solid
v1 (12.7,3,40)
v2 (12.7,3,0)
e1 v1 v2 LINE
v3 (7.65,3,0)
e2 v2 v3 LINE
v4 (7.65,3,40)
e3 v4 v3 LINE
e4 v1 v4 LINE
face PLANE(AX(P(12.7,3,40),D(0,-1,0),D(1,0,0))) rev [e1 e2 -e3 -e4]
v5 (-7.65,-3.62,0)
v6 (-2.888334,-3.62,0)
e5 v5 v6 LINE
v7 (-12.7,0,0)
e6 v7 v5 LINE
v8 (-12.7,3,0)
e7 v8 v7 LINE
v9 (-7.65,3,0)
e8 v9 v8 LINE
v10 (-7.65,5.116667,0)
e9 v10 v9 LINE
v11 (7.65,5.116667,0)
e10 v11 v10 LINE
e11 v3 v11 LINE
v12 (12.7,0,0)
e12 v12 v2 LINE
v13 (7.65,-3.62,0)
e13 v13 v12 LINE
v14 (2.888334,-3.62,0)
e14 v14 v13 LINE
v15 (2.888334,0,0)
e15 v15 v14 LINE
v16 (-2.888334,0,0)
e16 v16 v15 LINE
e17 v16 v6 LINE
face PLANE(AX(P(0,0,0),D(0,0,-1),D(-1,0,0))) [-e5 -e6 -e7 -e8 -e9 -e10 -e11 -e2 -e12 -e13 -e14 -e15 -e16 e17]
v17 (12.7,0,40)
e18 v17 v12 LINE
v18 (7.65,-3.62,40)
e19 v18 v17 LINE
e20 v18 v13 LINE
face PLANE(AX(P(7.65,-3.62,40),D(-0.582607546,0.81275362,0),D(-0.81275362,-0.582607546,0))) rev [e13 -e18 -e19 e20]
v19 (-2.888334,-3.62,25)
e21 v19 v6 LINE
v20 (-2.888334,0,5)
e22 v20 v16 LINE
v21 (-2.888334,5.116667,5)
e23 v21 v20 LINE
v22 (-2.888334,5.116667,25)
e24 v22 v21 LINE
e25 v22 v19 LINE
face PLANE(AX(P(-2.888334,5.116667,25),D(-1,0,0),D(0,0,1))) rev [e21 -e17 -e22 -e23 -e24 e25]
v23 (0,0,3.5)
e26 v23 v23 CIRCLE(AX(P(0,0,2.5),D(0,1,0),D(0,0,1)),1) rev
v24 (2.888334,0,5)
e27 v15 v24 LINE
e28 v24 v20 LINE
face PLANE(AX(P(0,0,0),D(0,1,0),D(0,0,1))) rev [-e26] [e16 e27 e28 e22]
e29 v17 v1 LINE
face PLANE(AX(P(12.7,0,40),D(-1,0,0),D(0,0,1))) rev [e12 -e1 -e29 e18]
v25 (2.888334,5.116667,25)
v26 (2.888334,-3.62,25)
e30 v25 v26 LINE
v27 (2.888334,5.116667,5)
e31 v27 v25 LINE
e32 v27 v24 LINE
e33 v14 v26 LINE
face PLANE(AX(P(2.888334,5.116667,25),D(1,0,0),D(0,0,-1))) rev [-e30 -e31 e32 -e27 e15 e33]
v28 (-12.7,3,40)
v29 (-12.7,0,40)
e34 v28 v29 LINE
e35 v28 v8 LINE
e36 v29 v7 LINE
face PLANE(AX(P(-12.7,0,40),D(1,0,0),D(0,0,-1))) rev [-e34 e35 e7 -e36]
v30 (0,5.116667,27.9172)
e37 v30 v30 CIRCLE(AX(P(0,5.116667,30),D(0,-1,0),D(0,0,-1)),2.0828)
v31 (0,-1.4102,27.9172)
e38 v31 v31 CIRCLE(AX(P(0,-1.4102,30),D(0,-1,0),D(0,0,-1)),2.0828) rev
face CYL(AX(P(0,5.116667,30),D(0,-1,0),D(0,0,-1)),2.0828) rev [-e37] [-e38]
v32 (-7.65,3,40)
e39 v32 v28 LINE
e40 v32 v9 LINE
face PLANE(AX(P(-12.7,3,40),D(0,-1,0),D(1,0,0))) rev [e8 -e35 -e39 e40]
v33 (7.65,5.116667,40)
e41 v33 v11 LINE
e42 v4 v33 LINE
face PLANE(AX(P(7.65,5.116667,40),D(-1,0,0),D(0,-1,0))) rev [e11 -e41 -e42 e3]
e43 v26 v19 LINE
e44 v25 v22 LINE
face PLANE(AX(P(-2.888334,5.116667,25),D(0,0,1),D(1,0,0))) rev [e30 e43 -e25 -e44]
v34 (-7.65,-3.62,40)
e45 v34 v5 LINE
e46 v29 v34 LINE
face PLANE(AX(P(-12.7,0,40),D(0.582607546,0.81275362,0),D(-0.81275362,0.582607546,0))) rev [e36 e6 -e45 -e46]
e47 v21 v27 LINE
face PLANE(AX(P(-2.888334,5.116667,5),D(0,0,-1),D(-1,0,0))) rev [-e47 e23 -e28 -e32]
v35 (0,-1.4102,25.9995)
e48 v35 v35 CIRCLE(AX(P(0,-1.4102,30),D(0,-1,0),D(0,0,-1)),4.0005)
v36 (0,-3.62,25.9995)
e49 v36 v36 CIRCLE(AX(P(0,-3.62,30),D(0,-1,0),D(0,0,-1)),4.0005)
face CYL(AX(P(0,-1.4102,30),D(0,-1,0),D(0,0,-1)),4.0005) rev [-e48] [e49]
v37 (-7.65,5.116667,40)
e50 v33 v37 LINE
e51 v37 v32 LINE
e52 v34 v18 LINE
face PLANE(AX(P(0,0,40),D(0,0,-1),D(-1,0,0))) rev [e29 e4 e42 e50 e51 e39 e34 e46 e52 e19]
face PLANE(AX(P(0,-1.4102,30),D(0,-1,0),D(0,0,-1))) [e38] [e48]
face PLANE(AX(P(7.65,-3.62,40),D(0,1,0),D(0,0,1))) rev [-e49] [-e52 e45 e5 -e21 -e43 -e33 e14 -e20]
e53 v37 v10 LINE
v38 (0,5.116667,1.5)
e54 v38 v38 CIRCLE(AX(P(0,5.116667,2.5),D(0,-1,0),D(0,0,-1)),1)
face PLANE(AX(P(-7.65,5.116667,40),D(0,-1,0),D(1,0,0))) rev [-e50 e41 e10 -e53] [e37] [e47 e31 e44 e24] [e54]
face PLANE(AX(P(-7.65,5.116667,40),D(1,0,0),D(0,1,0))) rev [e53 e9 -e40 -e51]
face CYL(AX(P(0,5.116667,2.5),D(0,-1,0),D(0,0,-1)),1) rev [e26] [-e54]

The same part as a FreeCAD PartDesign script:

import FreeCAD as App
import Part
import Sketcher

V = App.Vector
Q = App.Units.Quantity

doc = App.newDocument("Part")
body = doc.addObject("PartDesign::Body", "Body")

# Sketch on XY plane
sketch1 = body.newObject("Sketcher::SketchObject", "Sketch")
sketch1.AttachmentSupport = (doc.getObject("XY_Plane"), [""])
sketch1.MapMode = "FlatFace"
sketch1.addGeometry([
    Part.LineSegment(V(7.7, 5.1, 0), V(-7.7, 5.1, 0)),  # 0
    Part.LineSegment(V(-7.7, 5.1, 0), V(-7.7, 3, 0)),  # 1
    Part.LineSegment(V(-7.7, 3, 0), V(-12.7, 3, 0)),  # 2
    Part.LineSegment(V(-12.7, 3, 0), V(-12.7, 0, 0)),  # 3
    Part.LineSegment(V(-12.7, 0, 0), V(-7.7, -3.6, 0)),  # 4
    Part.LineSegment(V(-7.7, -3.6, 0), V(7.7, -3.6, 0)),  # 5
    Part.LineSegment(V(7.7, -3.6, 0), V(12.7, 0, 0)),  # 6
    Part.LineSegment(V(12.7, 0, 0), V(12.7, 3, 0)),  # 7
    Part.LineSegment(V(12.7, 3, 0), V(7.7, 3, 0)),  # 8
    Part.LineSegment(V(7.7, 3, 0), V(7.7, 5.1, 0)),  # 9
], False)
sketch1.addConstraint([
    Sketcher.Constraint("Coincident", 0, 2, 1, 1),
    Sketcher.Constraint("Coincident", 1, 2, 2, 1),
    Sketcher.Constraint("Coincident", 2, 2, 3, 1),
    Sketcher.Constraint("Coincident", 3, 2, 4, 1),
    Sketcher.Constraint("Coincident", 4, 2, 5, 1),
    Sketcher.Constraint("Coincident", 5, 2, 6, 1),
    Sketcher.Constraint("Coincident", 6, 2, 7, 1),
    Sketcher.Constraint("Coincident", 7, 2, 8, 1),
    Sketcher.Constraint("Coincident", 8, 2, 9, 1),
    Sketcher.Constraint("Coincident", 9, 2, 0, 1),
    Sketcher.Constraint("Horizontal", 0),
    Sketcher.Constraint("Vertical", 1),
    Sketcher.Constraint("Horizontal", 2),
    Sketcher.Constraint("Vertical", 3),
    Sketcher.Constraint("Horizontal", 5),
    Sketcher.Constraint("Vertical", 7),
    Sketcher.Constraint("Horizontal", 8),
    Sketcher.Constraint("Vertical", 9),
    Sketcher.Constraint("Symmetric", 3, 2, 6, 2, -1, 1),
    Sketcher.Constraint("Symmetric", 1, 2, 8, 2, -2),
    Sketcher.Constraint("PointOnObject", 3, 2, -1),
    Sketcher.Constraint("Vertical", 1, 2, 4, 2),
    Sketcher.Constraint("Vertical", 5, 2, 8, 2),
    Sketcher.Constraint("DistanceY", 3, 2, 3, 1, Q("3 mm")),
    Sketcher.Constraint("DistanceX", 0, 2, 0, 1, Q("15.3 mm")),
    Sketcher.Constraint("DistanceX", 2, 2, 2, 1, Q("5.05 mm")),
    Sketcher.Constraint("DistanceY", 4, 2, -1, 1, Q("3.62 mm")),
    Sketcher.Constraint("DistanceY", 1, 2, 1, 1, Q("2.116667 mm")),
])
pad1 = body.newObject("PartDesign::Pad", "Pad")
pad1.Profile = sketch1
pad1.Length = 40

# Sketch on XZ plane
sketch2 = body.newObject("Sketcher::SketchObject", "Sketch001")
sketch2.AttachmentSupport = (doc.getObject("XZ_Plane"), [""])
sketch2.MapMode = "FlatFace"
sketch2.AttachmentOffset = App.Placement(V(0, 0, 3.62), App.Rotation())
sketch2.addGeometry([
    Part.Circle(V(0, 30, 0), V(0, 0, 1), 2.1),
    Part.Circle(V(0, 2.5, 0), V(0, 0, 1), 1),
], False)
sketch2.addConstraint([
    Sketcher.Constraint("PointOnObject", 0, 3, -2),
    Sketcher.Constraint("PointOnObject", 1, 3, -2),
    Sketcher.Constraint("Diameter", 1, Q("2 mm")),
    Sketcher.Constraint("DistanceY", -1, 1, 0, 3, Q("30 mm")),
    Sketcher.Constraint("Diameter", 0, Q("4.1656 mm")),
    Sketcher.Constraint("DistanceY", -1, 1, 1, 3, Q("2.5 mm")),
])
pocket1 = body.newObject("PartDesign::Pocket", "Pocket")
pocket1.Profile = sketch2
pocket1.Type = "ThroughAll"

# Sketch on XZ plane
sketch3 = body.newObject("Sketcher::SketchObject", "Sketch002")
sketch3.AttachmentSupport = (doc.getObject("XZ_Plane"), [""])
sketch3.MapMode = "FlatFace"
sketch3.AttachmentOffset = App.Placement(V(0, 0, 3.62), App.Rotation())
sketch3.addGeometry([
    Part.LineSegment(V(-3, 25, 0), V(-3, 5, 0)),
    Part.LineSegment(V(-3, 5, 0), V(3, 5, 0)),
    Part.LineSegment(V(3, 5, 0), V(3, 25, 0)),
    Part.LineSegment(V(3, 25, 0), V(-3, 25, 0)),
], False)
sketch3.addConstraint([
    Sketcher.Constraint("Coincident", 0, 2, 1, 1),
    Sketcher.Constraint("Coincident", 1, 2, 2, 1),
    Sketcher.Constraint("Coincident", 2, 2, 3, 1),
    Sketcher.Constraint("Coincident", 3, 2, 0, 1),
    Sketcher.Constraint("Vertical", 0),
    Sketcher.Constraint("Horizontal", 1),
    Sketcher.Constraint("Vertical", 2),
    Sketcher.Constraint("Horizontal", 3),
    Sketcher.Constraint("DistanceY", 0, 2, 0, 1, Q("20 mm")),
    Sketcher.Constraint("DistanceY", -1, 1, 0, 2, Q("5 mm")),
    Sketcher.Constraint("DistanceX", 1, 1, 1, 2, Q("5.776667 mm")),
    Sketcher.Constraint("DistanceX", 0, 2, -1, 1, Q("2.888334 mm")),
])
pocket2 = body.newObject("PartDesign::Pocket", "Pocket001")
pocket2.Profile = sketch3
pocket2.Type = "ThroughAll"

# Sketch on XZ plane
sketch4 = body.newObject("Sketcher::SketchObject", "Sketch003")
sketch4.AttachmentSupport = (doc.getObject("XZ_Plane"), [""])
sketch4.MapMode = "FlatFace"
sketch4.AttachmentOffset = App.Placement(V(0, 0, 3.62), App.Rotation())
sketch4.addGeometry([
    Part.LineSegment(V(-3, 5, 0), V(-3, 0, 0)),
    Part.LineSegment(V(-3, 0, 0), V(3, 0, 0)),
    Part.LineSegment(V(3, 0, 0), V(3, 5, 0)),
    Part.LineSegment(V(3, 5, 0), V(-3, 5, 0)),
], False)
sketch4.addConstraint([
    Sketcher.Constraint("Coincident", 0, 2, 1, 1),
    Sketcher.Constraint("Coincident", 1, 2, 2, 1),
    Sketcher.Constraint("Coincident", 2, 2, 3, 1),
    Sketcher.Constraint("Coincident", 3, 2, 0, 1),
    Sketcher.Constraint("Vertical", 0),
    Sketcher.Constraint("Horizontal", 1),
    Sketcher.Constraint("Vertical", 2),
    Sketcher.Constraint("Horizontal", 3),
    Sketcher.Constraint("Symmetric", 0, 2, 1, 2, -1, 1),
    Sketcher.Constraint("DistanceY", 0, 2, 0, 1, Q("5 mm")),
    Sketcher.Constraint("DistanceX", 1, 1, 1, 2, Q("5.776667 mm")),
])
pocket3 = body.newObject("PartDesign::Pocket", "Pocket002")
pocket3.Profile = sketch4
pocket3.Length = 3.62

# Sketch on XZ plane
sketch5 = body.newObject("Sketcher::SketchObject", "Sketch004")
sketch5.AttachmentSupport = (doc.getObject("XZ_Plane"), [""])
sketch5.MapMode = "FlatFace"
sketch5.AttachmentOffset = App.Placement(V(0, 0, 3.62), App.Rotation())
sketch5.addGeometry(Part.Circle(V(0, 30, 0), V(0, 0, 1), 4), False)
sketch5.addConstraint([
    Sketcher.Constraint("PointOnObject", 0, 3, -2),
    Sketcher.Constraint("Diameter", 0, Q("8.001 mm")),
    Sketcher.Constraint("DistanceY", -1, 1, 0, 3, Q("30 mm")),
])
pocket4 = body.newObject("PartDesign::Pocket", "Pocket003")
pocket4.Profile = sketch5
pocket4.Length = 2.2098

doc.recompute()
